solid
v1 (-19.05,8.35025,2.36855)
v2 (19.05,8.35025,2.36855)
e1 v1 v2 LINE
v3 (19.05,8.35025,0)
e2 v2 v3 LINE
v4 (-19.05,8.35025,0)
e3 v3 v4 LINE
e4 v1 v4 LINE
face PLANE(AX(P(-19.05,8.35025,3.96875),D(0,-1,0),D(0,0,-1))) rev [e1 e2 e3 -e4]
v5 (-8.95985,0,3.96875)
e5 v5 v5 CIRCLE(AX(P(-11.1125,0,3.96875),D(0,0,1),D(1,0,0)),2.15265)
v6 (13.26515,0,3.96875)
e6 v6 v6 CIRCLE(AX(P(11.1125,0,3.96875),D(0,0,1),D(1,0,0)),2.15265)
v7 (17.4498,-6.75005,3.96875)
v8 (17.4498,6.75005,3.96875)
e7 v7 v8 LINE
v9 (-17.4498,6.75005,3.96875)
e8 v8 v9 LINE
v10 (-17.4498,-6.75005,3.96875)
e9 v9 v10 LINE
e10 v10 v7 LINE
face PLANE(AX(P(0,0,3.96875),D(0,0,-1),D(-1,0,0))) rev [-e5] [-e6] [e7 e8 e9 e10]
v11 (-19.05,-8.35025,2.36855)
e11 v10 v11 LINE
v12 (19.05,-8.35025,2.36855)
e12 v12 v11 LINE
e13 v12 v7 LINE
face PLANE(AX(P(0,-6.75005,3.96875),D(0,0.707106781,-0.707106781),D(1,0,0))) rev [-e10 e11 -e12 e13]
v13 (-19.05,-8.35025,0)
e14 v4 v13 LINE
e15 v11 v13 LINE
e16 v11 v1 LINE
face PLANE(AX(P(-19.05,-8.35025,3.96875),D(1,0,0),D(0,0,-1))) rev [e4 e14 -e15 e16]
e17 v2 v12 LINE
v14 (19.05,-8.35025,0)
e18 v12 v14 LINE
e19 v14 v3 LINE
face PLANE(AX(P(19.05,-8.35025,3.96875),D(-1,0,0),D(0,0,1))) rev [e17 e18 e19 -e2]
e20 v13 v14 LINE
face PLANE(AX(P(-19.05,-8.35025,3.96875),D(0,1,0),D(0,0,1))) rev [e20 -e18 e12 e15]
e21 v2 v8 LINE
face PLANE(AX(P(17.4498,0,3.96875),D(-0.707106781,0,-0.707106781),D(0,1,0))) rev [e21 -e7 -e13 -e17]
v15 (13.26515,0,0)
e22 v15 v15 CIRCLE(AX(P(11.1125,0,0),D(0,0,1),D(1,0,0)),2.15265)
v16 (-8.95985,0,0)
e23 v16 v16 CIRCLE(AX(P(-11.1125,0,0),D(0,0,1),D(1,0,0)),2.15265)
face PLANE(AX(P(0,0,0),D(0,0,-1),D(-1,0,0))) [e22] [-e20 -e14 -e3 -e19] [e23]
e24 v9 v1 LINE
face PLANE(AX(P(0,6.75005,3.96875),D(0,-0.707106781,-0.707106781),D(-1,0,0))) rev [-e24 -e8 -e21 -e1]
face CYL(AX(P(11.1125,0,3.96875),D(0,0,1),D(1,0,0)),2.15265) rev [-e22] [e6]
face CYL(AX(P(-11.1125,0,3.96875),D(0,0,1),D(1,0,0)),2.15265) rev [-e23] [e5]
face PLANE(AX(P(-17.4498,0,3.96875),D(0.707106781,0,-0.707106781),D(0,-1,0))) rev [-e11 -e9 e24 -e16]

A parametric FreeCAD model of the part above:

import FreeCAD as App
import Part
import Sketcher
Q = App.Units.Quantity


def edges_at(feature, points):
    """Names of the edges that pass closest to the given points."""
    edges = feature.Shape.Edges
    near = lambda p: min(range(len(edges)), key=lambda i: edges[i].distToShape(Part.Vertex(*p))[0])
    return sorted({f"Edge{near(p) + 1}" for p in points})


def add_polygon(sketch, points):
    """Adds a closed chain of lines whose ends are joined by coincident constraints."""
    first, n = sketch.GeometryCount, len(points)
    for a, b in zip(points, points[1:] + points[:1]):
        sketch.addGeometry(Part.LineSegment(App.Vector(*a, 0), App.Vector(*b, 0)), False)
    for i in range(n):
        sketch.addConstraint(Sketcher.Constraint("Coincident", first + i, 2, first + (i + 1) % n, 1))

doc = App.newDocument("Part")
body = doc.addObject("PartDesign::Body", "Body")

# Sketch on XY plane
sketch1 = body.newObject("Sketcher::SketchObject", "Sketch")
sketch1.AttachmentSupport = (doc.getObject("XY_Plane"), [""])
sketch1.MapMode = "FlatFace"
add_polygon(sketch1, [(-19, 8), (-19, -8), (19, -8), (19, 8)])  # lines 0-3
sketch1.addConstraint([
    Sketcher.Constraint("Vertical", 0),
    Sketcher.Constraint("Horizontal", 1),
    Sketcher.Constraint("Vertical", 2),
    Sketcher.Constraint("Horizontal", 3),
    Sketcher.Constraint("Symmetric", 0, 2, 2, 2, -1, 1),
    Sketcher.Constraint("DistanceX", 1, 1, 1, 2, Q("1.5 in")),
    Sketcher.Constraint("DistanceY", 0, 2, 0, 1, Q("0.6575 in")),
])
pad1 = body.newObject("PartDesign::Pad", "Pad")
pad1.Profile = sketch1
pad1.Length = Q("0.15625 in")

# Sketch on XY plane
sketch2 = body.newObject("Sketcher::SketchObject", "Sketch001")
sketch2.AttachmentSupport = (doc.getObject("XY_Plane"), [""])
sketch2.MapMode = "FlatFace"
sketch2.AttachmentOffset = App.Placement(App.Vector(0, 0, 0.15625 * 25.4), App.Rotation())
sketch2.addGeometry([
    Part.Circle(App.Vector(-11.1, 0, 0), App.Vector(0, 0, 1), 2.2),
    Part.Circle(App.Vector(11.1, 0, 0), App.Vector(0, 0, 1), 2.2),
], False)
sketch2.addConstraint([
    Sketcher.Constraint("Equal", 0, 1),
    Sketcher.Constraint("Symmetric", 0, 3, 1, 3, -1, 1),
    Sketcher.Constraint("PointOnObject", 0, 3, -1),
    Sketcher.Constraint("Diameter", 0, Q("0.1695 in")),
    Sketcher.Constraint("DistanceX", 0, 3, -1, 1, Q("0.4375 in")),
])
doc.recompute()
hole = body.newObject("PartDesign::Hole", "Hole")
hole.Profile = sketch2
hole.ThreadType = "None"
hole.Diameter = Q("0.1695 in")
hole.DepthType = "ThroughAll"
doc.recompute()

chamfer = body.newObject("PartDesign::Chamfer", "Chamfer")
chamfer.Base = (hole, edges_at(hole, [
    (-19.05, 0, 3.969),
    (0, -8.35, 3.969),
    (19.05, 0, 3.969),
    (0, 8.35, 3.969),
]))
chamfer.Size = Q("0.063 in")

doc.recompute()
